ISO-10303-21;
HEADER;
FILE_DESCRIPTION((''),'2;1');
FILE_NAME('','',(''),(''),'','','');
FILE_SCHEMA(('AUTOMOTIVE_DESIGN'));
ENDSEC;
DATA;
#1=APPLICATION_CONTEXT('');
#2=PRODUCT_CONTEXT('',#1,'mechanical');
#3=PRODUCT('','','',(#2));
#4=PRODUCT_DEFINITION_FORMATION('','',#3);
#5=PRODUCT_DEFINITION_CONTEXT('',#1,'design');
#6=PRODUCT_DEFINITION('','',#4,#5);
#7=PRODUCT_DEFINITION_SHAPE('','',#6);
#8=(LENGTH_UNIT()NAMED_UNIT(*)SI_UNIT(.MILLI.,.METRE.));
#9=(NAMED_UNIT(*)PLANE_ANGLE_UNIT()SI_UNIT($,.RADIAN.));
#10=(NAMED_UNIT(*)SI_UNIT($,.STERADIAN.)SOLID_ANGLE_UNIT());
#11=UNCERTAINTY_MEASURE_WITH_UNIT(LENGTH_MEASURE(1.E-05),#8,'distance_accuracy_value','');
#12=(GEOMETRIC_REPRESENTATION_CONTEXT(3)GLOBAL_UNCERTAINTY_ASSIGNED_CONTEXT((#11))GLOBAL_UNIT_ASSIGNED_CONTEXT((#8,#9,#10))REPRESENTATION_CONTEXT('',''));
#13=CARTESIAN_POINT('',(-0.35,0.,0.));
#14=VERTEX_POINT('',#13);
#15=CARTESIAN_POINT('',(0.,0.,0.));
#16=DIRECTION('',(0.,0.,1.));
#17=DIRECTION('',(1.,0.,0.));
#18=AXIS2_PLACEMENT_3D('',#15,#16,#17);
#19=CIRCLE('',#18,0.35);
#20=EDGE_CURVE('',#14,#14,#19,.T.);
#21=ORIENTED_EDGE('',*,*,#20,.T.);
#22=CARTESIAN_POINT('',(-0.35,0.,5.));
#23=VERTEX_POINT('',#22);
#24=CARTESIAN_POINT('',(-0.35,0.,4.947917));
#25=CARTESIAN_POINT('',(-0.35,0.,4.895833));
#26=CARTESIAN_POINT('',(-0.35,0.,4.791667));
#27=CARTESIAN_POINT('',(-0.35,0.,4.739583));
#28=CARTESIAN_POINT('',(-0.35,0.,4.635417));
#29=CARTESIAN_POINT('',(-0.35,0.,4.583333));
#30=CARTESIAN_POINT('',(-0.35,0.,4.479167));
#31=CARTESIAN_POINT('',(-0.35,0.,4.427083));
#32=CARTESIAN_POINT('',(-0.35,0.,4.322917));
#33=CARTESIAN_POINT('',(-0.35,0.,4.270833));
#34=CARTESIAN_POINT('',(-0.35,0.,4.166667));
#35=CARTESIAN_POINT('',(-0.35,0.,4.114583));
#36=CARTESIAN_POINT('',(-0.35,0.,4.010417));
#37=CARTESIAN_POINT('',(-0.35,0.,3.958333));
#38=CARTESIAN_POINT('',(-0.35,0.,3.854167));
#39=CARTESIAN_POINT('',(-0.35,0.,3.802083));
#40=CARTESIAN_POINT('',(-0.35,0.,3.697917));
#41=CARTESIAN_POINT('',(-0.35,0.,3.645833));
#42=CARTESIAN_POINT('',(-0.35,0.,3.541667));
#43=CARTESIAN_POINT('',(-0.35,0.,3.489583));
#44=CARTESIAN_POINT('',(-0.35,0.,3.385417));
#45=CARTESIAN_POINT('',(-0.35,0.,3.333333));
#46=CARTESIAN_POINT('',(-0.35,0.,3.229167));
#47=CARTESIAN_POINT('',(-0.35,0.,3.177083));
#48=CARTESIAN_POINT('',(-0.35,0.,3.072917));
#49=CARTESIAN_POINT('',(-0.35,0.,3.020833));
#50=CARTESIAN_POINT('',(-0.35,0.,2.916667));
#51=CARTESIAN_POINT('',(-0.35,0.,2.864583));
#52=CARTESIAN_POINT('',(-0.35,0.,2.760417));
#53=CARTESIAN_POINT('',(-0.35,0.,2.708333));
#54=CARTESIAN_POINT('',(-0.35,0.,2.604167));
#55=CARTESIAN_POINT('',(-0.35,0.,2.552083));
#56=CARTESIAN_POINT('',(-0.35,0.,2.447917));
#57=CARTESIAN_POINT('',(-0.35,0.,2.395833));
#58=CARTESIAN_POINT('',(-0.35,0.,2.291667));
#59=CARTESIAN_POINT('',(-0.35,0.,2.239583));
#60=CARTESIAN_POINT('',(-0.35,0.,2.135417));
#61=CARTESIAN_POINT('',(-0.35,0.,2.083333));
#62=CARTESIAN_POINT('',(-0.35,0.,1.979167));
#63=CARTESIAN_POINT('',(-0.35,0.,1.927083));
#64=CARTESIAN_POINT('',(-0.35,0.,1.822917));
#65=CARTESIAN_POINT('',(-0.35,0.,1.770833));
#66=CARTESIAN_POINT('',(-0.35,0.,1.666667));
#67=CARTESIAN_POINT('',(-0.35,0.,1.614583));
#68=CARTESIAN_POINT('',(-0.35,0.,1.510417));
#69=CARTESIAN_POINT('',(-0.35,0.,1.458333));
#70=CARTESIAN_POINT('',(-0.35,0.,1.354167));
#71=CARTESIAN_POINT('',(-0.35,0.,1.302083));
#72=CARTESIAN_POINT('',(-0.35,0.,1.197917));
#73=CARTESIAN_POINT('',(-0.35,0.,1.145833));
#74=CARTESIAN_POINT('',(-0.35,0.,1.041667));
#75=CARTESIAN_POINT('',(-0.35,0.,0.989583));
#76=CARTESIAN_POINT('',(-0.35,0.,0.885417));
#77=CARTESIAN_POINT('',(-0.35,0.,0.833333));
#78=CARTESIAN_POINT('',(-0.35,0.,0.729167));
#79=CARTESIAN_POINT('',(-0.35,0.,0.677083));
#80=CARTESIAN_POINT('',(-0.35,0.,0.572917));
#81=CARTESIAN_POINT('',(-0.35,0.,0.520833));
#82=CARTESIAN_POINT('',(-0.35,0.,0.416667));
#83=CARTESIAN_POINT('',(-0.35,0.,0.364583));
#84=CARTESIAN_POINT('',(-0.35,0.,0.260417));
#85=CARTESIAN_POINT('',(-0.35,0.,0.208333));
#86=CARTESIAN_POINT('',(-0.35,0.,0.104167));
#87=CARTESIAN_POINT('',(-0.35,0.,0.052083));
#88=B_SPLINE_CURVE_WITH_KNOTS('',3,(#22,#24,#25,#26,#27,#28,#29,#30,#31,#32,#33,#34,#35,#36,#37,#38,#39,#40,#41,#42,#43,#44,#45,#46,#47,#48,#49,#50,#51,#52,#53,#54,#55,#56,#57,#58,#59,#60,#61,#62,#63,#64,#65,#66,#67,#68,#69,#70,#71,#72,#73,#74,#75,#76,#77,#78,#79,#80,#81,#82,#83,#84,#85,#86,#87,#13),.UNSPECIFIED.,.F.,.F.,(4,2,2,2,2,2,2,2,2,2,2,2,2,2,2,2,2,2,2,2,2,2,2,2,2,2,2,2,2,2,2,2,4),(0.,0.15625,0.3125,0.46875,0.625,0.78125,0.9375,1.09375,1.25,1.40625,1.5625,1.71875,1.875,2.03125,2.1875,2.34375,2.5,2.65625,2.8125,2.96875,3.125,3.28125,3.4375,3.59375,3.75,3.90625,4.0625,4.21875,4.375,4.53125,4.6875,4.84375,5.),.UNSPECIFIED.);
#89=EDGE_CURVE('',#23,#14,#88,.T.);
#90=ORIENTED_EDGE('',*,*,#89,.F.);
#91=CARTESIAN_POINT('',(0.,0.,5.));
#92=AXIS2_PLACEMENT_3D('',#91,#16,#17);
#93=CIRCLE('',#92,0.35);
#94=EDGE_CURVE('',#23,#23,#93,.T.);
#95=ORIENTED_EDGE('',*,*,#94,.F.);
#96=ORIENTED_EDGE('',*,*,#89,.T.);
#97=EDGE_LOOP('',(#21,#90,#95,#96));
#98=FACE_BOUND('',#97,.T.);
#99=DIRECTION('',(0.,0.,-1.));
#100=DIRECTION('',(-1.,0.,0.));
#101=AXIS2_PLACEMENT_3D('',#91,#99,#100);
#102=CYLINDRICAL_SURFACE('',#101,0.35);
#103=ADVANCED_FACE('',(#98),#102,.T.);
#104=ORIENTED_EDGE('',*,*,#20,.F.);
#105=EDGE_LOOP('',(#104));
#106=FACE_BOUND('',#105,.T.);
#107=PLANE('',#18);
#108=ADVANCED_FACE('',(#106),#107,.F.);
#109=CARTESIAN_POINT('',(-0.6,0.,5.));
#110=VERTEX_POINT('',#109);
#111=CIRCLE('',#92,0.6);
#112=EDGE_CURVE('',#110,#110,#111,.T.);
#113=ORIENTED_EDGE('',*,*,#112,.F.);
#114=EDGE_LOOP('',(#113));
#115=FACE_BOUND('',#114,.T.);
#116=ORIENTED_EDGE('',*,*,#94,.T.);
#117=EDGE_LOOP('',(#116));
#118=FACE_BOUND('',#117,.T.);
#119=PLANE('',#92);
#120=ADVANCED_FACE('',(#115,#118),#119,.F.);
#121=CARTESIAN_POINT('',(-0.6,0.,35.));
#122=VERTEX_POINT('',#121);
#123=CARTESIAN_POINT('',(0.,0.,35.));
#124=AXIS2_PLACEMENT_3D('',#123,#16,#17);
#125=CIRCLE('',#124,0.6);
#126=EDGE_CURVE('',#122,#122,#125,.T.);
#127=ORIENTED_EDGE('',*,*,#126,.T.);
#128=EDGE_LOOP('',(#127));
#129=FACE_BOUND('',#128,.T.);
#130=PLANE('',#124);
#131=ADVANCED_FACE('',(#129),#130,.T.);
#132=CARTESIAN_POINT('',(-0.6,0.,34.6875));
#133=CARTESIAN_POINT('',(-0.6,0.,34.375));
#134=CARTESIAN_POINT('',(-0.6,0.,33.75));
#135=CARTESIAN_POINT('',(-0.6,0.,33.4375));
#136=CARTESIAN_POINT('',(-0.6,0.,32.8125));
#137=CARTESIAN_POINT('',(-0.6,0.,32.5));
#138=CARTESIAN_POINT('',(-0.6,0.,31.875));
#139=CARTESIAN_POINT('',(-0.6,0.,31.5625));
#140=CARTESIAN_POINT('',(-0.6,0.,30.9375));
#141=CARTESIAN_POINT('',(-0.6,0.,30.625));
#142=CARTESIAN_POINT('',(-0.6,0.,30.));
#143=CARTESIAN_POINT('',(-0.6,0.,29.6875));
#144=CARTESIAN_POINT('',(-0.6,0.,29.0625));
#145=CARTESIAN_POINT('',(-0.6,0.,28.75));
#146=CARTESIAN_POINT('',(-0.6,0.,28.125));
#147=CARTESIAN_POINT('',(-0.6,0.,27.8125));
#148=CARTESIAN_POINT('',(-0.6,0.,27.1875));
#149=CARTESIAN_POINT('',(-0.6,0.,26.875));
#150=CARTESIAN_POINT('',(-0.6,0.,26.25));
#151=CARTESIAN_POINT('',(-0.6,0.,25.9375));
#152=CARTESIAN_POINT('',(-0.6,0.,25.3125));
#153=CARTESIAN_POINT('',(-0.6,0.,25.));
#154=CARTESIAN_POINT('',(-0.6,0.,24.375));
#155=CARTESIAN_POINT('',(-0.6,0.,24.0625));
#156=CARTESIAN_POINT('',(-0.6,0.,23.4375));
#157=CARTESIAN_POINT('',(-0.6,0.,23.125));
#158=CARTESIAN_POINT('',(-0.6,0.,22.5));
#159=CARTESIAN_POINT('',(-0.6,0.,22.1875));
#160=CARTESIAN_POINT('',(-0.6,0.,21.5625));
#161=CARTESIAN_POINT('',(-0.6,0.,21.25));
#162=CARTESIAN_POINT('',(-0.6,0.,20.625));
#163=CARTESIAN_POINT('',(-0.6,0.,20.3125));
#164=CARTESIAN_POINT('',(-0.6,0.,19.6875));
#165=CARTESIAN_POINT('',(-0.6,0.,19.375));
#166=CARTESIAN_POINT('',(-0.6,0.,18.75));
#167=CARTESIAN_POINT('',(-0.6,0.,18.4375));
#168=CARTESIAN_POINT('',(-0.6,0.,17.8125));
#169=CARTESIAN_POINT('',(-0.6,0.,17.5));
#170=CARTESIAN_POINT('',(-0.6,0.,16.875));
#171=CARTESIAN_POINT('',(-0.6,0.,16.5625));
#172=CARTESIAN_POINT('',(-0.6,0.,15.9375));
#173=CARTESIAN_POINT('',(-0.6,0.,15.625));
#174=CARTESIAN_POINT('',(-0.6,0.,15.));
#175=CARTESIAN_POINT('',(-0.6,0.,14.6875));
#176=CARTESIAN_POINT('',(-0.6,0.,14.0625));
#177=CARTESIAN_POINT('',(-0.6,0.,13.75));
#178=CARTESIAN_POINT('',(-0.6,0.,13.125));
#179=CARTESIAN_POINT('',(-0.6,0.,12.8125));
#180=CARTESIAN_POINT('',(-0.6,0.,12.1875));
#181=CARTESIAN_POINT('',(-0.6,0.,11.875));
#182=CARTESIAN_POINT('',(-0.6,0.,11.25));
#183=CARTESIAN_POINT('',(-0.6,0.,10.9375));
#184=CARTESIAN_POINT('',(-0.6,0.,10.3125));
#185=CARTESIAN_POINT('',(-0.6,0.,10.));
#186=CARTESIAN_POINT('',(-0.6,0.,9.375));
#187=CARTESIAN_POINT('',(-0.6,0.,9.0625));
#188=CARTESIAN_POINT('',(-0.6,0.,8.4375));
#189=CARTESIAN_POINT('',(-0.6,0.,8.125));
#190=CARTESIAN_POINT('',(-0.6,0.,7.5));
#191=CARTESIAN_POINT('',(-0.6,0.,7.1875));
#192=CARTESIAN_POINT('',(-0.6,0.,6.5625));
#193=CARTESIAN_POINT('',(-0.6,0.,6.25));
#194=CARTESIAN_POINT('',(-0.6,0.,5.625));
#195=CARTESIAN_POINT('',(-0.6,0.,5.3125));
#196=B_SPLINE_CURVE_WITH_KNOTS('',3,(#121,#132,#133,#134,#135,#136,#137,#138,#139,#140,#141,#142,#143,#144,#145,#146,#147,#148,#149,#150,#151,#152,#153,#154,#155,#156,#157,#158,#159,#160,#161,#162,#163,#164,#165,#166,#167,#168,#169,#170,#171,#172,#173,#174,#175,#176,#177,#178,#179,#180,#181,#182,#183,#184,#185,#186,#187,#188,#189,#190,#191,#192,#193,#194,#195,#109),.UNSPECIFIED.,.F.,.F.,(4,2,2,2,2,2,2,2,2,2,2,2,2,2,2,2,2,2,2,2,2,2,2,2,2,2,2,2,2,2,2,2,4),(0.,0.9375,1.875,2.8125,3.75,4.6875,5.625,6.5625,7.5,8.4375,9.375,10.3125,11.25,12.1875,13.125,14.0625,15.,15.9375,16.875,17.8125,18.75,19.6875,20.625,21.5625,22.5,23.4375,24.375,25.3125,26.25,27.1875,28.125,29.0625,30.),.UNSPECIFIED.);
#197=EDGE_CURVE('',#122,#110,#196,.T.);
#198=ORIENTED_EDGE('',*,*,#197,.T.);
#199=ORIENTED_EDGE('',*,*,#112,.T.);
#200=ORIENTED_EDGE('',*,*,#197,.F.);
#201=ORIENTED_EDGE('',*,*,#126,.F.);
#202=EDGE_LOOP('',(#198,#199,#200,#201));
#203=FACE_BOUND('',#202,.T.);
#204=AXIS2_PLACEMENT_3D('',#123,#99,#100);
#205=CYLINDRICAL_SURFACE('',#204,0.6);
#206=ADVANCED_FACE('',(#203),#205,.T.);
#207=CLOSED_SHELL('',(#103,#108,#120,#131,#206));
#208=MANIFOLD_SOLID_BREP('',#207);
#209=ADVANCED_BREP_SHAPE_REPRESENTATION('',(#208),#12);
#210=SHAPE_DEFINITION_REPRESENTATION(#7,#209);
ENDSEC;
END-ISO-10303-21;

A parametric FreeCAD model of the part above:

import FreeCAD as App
import Part
import Sketcher
from FreeCAD import Vector
Q = App.Units.Quantity

doc = App.newDocument("Part")
body = doc.addObject("PartDesign::Body", "Body")

# Sketch on XY plane
sketch1 = body.newObject("Sketcher::SketchObject", "Sketch")
sketch1.AttachmentSupport = (doc.getObject("XY_Plane"), [""])
sketch1.MapMode = "FlatFace"
sketch1.addGeometry(Part.Circle(Vector(0, 0, 0), Vector(0, 0, 1), 0.35), False)
sketch1.addConstraint([
    Sketcher.Constraint("Coincident", 0, 3, -1, 1),
    Sketcher.Constraint("Diameter", 0, Q("0.7 mm")),
])
pad1 = body.newObject("PartDesign::Pad", "Pad")
pad1.Profile = sketch1
pad1.Length = 5

# Sketch on XY plane
sketch2 = body.newObject("Sketcher::SketchObject", "Sketch001")
sketch2.AttachmentSupport = (doc.getObject("XY_Plane"), [""])
sketch2.MapMode = "FlatFace"
sketch2.AttachmentOffset = App.Placement(Vector(0, 0, 5), App.Rotation())
sketch2.addGeometry(Part.Circle(Vector(0, 0, 0), Vector(0, 0, 1), 0.6), False)
sketch2.addConstraint([
    Sketcher.Constraint("Coincident", 0, 3, -1, 1),
    Sketcher.Constraint("Diameter", 0, Q("1.2 mm")),
])
pad2 = body.newObject("PartDesign::Pad", "Pad001")
pad2.Profile = sketch2
pad2.Length = 30

doc.recompute()
